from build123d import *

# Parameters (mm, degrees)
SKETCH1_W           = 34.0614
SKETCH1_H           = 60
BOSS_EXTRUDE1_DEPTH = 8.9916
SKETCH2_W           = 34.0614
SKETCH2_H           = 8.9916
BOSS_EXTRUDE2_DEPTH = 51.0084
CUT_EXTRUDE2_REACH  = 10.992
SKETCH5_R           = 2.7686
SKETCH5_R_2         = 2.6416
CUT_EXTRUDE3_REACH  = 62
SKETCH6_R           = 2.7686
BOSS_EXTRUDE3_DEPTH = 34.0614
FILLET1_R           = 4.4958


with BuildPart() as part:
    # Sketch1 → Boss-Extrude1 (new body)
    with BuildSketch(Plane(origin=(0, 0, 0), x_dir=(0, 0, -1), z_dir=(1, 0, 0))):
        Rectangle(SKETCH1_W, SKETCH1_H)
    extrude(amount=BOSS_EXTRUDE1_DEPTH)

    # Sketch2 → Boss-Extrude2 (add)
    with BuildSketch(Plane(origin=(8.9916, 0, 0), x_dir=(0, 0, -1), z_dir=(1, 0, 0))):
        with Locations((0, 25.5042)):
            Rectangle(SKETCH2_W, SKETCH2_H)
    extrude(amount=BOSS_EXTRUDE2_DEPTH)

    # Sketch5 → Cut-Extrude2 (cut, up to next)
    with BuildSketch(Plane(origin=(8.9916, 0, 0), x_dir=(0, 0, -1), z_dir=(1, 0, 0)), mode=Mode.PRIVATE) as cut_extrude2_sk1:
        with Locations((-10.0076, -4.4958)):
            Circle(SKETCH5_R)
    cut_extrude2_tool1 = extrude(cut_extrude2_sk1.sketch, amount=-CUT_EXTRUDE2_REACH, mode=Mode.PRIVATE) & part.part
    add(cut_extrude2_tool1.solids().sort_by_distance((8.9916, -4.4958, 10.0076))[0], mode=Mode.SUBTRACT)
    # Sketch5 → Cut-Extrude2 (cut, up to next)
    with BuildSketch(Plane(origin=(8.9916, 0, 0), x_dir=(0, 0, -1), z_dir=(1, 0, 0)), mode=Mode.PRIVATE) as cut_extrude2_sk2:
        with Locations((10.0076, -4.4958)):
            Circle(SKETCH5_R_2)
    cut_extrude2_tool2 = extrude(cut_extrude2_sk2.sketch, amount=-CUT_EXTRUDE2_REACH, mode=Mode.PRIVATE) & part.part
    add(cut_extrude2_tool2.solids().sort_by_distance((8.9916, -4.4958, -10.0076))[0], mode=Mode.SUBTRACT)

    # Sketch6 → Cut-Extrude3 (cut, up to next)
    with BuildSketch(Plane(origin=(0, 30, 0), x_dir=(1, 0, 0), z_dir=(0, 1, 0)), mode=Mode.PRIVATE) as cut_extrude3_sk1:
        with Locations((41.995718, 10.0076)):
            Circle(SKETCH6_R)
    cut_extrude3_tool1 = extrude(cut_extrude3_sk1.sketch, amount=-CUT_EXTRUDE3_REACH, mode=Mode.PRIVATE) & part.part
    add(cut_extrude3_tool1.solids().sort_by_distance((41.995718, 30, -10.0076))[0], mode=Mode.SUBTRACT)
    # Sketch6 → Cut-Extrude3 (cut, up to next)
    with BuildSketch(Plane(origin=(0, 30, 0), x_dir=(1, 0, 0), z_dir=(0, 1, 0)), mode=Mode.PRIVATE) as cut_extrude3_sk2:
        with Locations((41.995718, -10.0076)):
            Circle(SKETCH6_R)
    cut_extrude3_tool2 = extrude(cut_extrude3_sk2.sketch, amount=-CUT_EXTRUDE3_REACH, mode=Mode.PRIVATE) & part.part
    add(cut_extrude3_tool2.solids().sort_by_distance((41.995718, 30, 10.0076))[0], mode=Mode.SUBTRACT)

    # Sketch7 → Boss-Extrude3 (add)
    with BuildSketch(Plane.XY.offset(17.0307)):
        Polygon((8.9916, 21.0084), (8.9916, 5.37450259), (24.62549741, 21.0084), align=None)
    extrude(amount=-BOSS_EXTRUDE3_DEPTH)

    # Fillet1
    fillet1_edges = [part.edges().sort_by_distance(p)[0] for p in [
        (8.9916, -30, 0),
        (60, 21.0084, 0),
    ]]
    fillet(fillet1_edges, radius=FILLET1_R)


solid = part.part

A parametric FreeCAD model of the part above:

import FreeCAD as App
import Part
import Sketcher
from FreeCAD import Vector
Q = App.Units.Quantity


def edges_at(feature, points):
    """Names of the edges that pass closest to the given points."""
    edges = feature.Shape.Edges
    near = lambda p: min(range(len(edges)), key=lambda i: edges[i].distToShape(Part.Vertex(*p))[0])
    return sorted({f"Edge{near(p) + 1}" for p in points})

doc = App.newDocument("Part")
body = doc.addObject("PartDesign::Body", "Body")

# Sketch on YZ plane
sketch1 = body.newObject("Sketcher::SketchObject", "Sketch")
sketch1.AttachmentSupport = (doc.getObject("YZ_Plane"), [""])
sketch1.MapMode = "FlatFace"
sketch1.addGeometry(Part.LineSegment(Vector(30, 17, 0), Vector(-30, 17, 0)), False)
sketch1.addGeometry(Part.LineSegment(Vector(-30, 17, 0), Vector(-30, -17, 0)), False)
sketch1.addGeometry(Part.LineSegment(Vector(-30, -17, 0), Vector(30, -17, 0)), False)
sketch1.addGeometry(Part.LineSegment(Vector(30, -17, 0), Vector(30, 17, 0)), False)
sketch1.addConstraint(Sketcher.Constraint("Coincident", 0, 2, 1, 1))
sketch1.addConstraint(Sketcher.Constraint("Coincident", 1, 2, 2, 1))
sketch1.addConstraint(Sketcher.Constraint("Coincident", 2, 2, 3, 1))
sketch1.addConstraint(Sketcher.Constraint("Coincident", 3, 2, 0, 1))
sketch1.addConstraint(Sketcher.Constraint("Horizontal", 0))
sketch1.addConstraint(Sketcher.Constraint("Vertical", 1))
sketch1.addConstraint(Sketcher.Constraint("Horizontal", 2))
sketch1.addConstraint(Sketcher.Constraint("Vertical", 3))
sketch1.addConstraint(Sketcher.Constraint("Symmetric", 0, 2, 2, 2, -1, 1))
sketch1.addConstraint(Sketcher.Constraint("DistanceY", 1, 2, 1, 1, Q("1.341 in")))
sketch1.addConstraint(Sketcher.Constraint("DistanceX", 0, 2, 0, 1, 60.0))
pad1 = body.newObject("PartDesign::Pad", "Pad")
pad1.Profile = sketch1
pad1.Length = Q("0.354 in")

# Sketch on YZ plane
sketch2 = body.newObject("Sketcher::SketchObject", "Sketch001")
sketch2.AttachmentSupport = (doc.getObject("YZ_Plane"), [""])
sketch2.MapMode = "FlatFace"
sketch2.AttachmentOffset = App.Placement(Vector(0, 0, 0.354 * 25.4), App.Rotation())
sketch2.addGeometry(Part.LineSegment(Vector(30, 17, 0), Vector(21, 17, 0)), False)
sketch2.addGeometry(Part.LineSegment(Vector(21, 17, 0), Vector(21, -17, 0)), False)
sketch2.addGeometry(Part.LineSegment(Vector(21, -17, 0), Vector(30, -17, 0)), False)
sketch2.addGeometry(Part.LineSegment(Vector(30, -17, 0), Vector(30, 17, 0)), False)
sketch2.addConstraint(Sketcher.Constraint("Coincident", 0, 2, 1, 1))
sketch2.addConstraint(Sketcher.Constraint("Coincident", 1, 2, 2, 1))
sketch2.addConstraint(Sketcher.Constraint("Coincident", 2, 2, 3, 1))
sketch2.addConstraint(Sketcher.Constraint("Coincident", 3, 2, 0, 1))
sketch2.addConstraint(Sketcher.Constraint("Horizontal", 0))
sketch2.addConstraint(Sketcher.Constraint("Vertical", 1))
sketch2.addConstraint(Sketcher.Constraint("Horizontal", 2))
sketch2.addConstraint(Sketcher.Constraint("Vertical", 3))
sketch2.addConstraint(Sketcher.Constraint("DistanceX", 0, 2, 0, 1, Q("0.354 in")))
sketch2.addConstraint(Sketcher.Constraint("DistanceY", 1, 2, 1, 1, Q("1.341 in")))
sketch2.addConstraint(Sketcher.Constraint("DistanceY", -1, 1, 0, 2, Q("0.6705 in")))
sketch2.addConstraint(Sketcher.Constraint("DistanceX", -1, 1, 0, 2, 21.0084))
pad2 = body.newObject("PartDesign::Pad", "Pad001")
pad2.Profile = sketch2
pad2.Length = 51.0084

# Sketch on YZ plane
sketch3 = body.newObject("Sketcher::SketchObject", "Sketch002")
sketch3.AttachmentSupport = (doc.getObject("YZ_Plane"), [""])
sketch3.MapMode = "FlatFace"
sketch3.AttachmentOffset = App.Placement(Vector(0, 0, 0.354 * 25.4), App.Rotation())
sketch3.addGeometry(Part.Circle(Vector(-4.5, 10, 0), Vector(0, 0, 1), 2.8), False)
sketch3.addConstraint(Sketcher.Constraint("Diameter", 0, Q("0.218 in")))
sketch3.addConstraint(Sketcher.Constraint("DistanceX", 0, 3, -1, 1, Q("0.177 in")))
sketch3.addConstraint(Sketcher.Constraint("DistanceY", -1, 1, 0, 3, Q("0.394 in")))
pocket1 = body.newObject("PartDesign::Pocket", "Pocket")
pocket1.Profile = sketch3
pocket1.Type = "UpToFirst"

# Sketch on YZ plane
sketch4 = body.newObject("Sketcher::SketchObject", "Sketch003")
sketch4.AttachmentSupport = (doc.getObject("YZ_Plane"), [""])
sketch4.MapMode = "FlatFace"
sketch4.AttachmentOffset = App.Placement(Vector(0, 0, 0.354 * 25.4), App.Rotation())
sketch4.addGeometry(Part.Circle(Vector(-4.5, -10, 0), Vector(0, 0, 1), 2.6), False)
sketch4.addConstraint(Sketcher.Constraint("Diameter", 0, Q("0.208 in")))
sketch4.addConstraint(Sketcher.Constraint("DistanceX", 0, 3, -1, 1, Q("0.177 in")))
sketch4.addConstraint(Sketcher.Constraint("DistanceY", 0, 3, -1, 1, Q("0.394 in")))
pocket2 = body.newObject("PartDesign::Pocket", "Pocket001")
pocket2.Profile = sketch4
pocket2.Type = "UpToFirst"

# Sketch on XZ plane
sketch5 = body.newObject("Sketcher::SketchObject", "Sketch004")
sketch5.AttachmentSupport = (doc.getObject("XZ_Plane"), [""])
sketch5.MapMode = "FlatFace"
sketch5.AttachmentOffset = App.Placement(Vector(0, 0, -30), App.Rotation())
sketch5.addGeometry(Part.Circle(Vector(42, -10, 0), Vector(0, 0, 1), 2.8), False)
sketch5.addConstraint(Sketcher.Constraint("Diameter", 0, Q("0.218 in")))
sketch5.addConstraint(Sketcher.Constraint("DistanceY", 0, 3, -1, 1, Q("0.394 in")))
sketch5.addConstraint(Sketcher.Constraint("DistanceX", -1, 1, 0, 3, 41.995718))
pocket3 = body.newObject("PartDesign::Pocket", "Pocket002")
pocket3.Profile = sketch5
pocket3.Type = "UpToFirst"
pocket3.Reversed = True

# Sketch on XZ plane
sketch6 = body.newObject("Sketcher::SketchObject", "Sketch005")
sketch6.AttachmentSupport = (doc.getObject("XZ_Plane"), [""])
sketch6.MapMode = "FlatFace"
sketch6.AttachmentOffset = App.Placement(Vector(0, 0, -30), App.Rotation())
sketch6.addGeometry(Part.Circle(Vector(42, 10, 0), Vector(0, 0, 1), 2.8), False)
sketch6.addConstraint(Sketcher.Constraint("Diameter", 0, Q("0.218 in")))
sketch6.addConstraint(Sketcher.Constraint("DistanceY", -1, 1, 0, 3, Q("0.394 in")))
sketch6.addConstraint(Sketcher.Constraint("DistanceX", -1, 1, 0, 3, 41.995718))
pocket4 = body.newObject("PartDesign::Pocket", "Pocket003")
pocket4.Profile = sketch6
pocket4.Type = "UpToFirst"
pocket4.Reversed = True

# Sketch on XY plane
sketch7 = body.newObject("Sketcher::SketchObject", "Sketch006")
sketch7.AttachmentSupport = (doc.getObject("XY_Plane"), [""])
sketch7.MapMode = "FlatFace"
sketch7.AttachmentOffset = App.Placement(Vector(0, 0, 0.6705 * 25.4), App.Rotation())
sketch7.addGeometry(Part.LineSegment(Vector(9, 21, 0), Vector(9, 5, 0)), False)
sketch7.addGeometry(Part.LineSegment(Vector(9, 5, 0), Vector(25, 21, 0)), False)
sketch7.addGeometry(Part.LineSegment(Vector(25, 21, 0), Vector(9, 21, 0)), False)
sketch7.addConstraint(Sketcher.Constraint("Coincident", 0, 2, 1, 1))
sketch7.addConstraint(Sketcher.Constraint("Coincident", 1, 2, 2, 1))
sketch7.addConstraint(Sketcher.Constraint("Coincident", 2, 2, 0, 1))
sketch7.addConstraint(Sketcher.Constraint("Vertical", 0))
sketch7.addConstraint(Sketcher.Constraint("Horizontal", 2))
sketch7.addConstraint(Sketcher.Constraint("Equal", 2, 0))
sketch7.addConstraint(Sketcher.Constraint("DistanceX", -1, 1, 0, 2, Q("0.354 in")))
sketch7.addConstraint(Sketcher.Constraint("DistanceY", -1, 1, 1, 2, 21.0084))
sketch7.addConstraint(Sketcher.Constraint("Distance", 1, 22.10967))
pad3 = body.newObject("PartDesign::Pad", "Pad002")
pad3.Profile = sketch7
pad3.Length = Q("1.341 in")
pad3.Reversed = True
doc.recompute()

fillet = body.newObject("PartDesign::Fillet", "Fillet")
fillet.Base = (pad3, edges_at(pad3, [(8.992, -30, 0), (60, 21.008, 0)]))
fillet.Radius = Q("0.177 in")

doc.recompute()
